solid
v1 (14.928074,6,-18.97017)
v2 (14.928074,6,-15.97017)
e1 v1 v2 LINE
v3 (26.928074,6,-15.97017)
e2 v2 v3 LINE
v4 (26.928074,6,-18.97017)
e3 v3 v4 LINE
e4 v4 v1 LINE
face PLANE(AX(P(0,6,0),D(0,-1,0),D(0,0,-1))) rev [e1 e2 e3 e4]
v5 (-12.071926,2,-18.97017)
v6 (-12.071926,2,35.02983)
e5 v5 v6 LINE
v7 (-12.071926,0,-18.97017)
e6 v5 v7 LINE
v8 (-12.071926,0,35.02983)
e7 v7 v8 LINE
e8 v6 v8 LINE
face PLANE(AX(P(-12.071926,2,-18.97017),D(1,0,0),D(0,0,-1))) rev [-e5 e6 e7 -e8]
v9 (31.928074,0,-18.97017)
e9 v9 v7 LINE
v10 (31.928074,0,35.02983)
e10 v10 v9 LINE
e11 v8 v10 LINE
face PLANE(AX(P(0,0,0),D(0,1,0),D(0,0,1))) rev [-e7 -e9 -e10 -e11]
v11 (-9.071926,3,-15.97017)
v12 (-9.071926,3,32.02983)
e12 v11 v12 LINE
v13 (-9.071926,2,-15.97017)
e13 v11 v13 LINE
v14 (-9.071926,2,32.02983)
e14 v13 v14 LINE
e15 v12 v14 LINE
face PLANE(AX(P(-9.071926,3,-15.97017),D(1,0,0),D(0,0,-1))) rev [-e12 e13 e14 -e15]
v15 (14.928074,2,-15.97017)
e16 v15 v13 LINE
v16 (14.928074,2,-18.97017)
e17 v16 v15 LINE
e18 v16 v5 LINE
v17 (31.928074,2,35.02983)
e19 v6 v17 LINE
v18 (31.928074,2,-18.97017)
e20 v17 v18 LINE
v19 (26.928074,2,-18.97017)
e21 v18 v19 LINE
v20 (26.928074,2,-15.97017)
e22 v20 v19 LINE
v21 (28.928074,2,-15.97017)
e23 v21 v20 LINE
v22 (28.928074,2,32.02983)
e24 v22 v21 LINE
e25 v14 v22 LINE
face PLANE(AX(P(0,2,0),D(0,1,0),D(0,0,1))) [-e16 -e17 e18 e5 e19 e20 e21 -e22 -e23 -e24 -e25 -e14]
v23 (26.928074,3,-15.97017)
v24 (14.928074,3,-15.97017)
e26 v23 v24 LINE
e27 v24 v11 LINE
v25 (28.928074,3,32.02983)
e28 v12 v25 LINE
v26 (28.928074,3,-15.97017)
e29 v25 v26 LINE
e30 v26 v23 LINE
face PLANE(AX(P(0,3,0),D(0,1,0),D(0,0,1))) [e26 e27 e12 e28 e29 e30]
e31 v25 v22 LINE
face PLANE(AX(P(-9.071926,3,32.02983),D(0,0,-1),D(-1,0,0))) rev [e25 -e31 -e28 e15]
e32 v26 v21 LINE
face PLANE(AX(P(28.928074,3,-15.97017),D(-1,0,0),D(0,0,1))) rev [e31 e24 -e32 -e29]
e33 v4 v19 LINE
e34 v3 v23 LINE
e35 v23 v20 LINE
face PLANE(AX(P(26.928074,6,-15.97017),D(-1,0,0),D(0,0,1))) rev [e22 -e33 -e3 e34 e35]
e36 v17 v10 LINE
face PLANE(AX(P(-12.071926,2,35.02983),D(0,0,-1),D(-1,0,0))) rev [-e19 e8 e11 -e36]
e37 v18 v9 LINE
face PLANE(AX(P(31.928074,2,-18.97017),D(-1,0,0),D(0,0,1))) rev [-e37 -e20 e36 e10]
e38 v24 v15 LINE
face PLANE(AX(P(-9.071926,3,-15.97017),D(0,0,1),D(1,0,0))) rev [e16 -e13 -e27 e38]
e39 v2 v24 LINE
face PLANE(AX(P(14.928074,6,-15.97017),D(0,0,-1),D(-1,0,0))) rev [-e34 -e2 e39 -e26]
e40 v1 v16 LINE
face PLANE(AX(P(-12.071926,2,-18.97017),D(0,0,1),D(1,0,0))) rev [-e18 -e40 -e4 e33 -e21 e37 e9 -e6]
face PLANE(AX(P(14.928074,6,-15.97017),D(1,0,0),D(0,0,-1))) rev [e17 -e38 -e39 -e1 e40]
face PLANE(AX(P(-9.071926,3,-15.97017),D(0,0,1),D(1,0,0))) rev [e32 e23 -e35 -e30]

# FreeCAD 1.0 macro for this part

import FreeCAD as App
import Part
import Sketcher
Q = App.Units.Quantity

doc = App.newDocument("Part")
body = doc.addObject("PartDesign::Body", "Body")

sketch1 = body.newObject("Sketcher::SketchObject", "Sketch")
sketch1.AttachmentSupport = (doc.getObject("XZ_Plane"), [""])
sketch1.MapMode = "FlatFace"
sketch1.addGeometry([
    Part.LineSegment(App.Vector(-12.071926, -18.97017, 0), App.Vector(-12.071926, 35.02983, 0)),
    Part.LineSegment(App.Vector(-12.071926, 35.02983, 0), App.Vector(31.928074, 35.02983, 0)),
    Part.LineSegment(App.Vector(31.928074, 35.02983, 0), App.Vector(31.928074, -18.97017, 0)),
    Part.LineSegment(App.Vector(31.928074, -18.97017, 0), App.Vector(-12.071926, -18.97017, 0)),
], False)
sketch1.addConstraint([
    Sketcher.Constraint("Coincident", 0, 2, 1, 1),
    Sketcher.Constraint("Coincident", 1, 2, 2, 1),
    Sketcher.Constraint("Coincident", 2, 2, 3, 1),
    Sketcher.Constraint("Coincident", 3, 2, 0, 1),
    Sketcher.Constraint("Vertical", 0),
    Sketcher.Constraint("Horizontal", 1),
    Sketcher.Constraint("Vertical", 2),
    Sketcher.Constraint("Horizontal", 3),
    Sketcher.Constraint("DistanceX", 1, 1, 1, 2, Q("44 mm")),
    Sketcher.Constraint("DistanceY", 0, 1, 0, 2, Q("54 mm")),
    Sketcher.Constraint("DistanceY", -1, 1, 0, 2, Q("35.02983 mm")),
    Sketcher.Constraint("DistanceX", 0, 2, -1, 1, Q("12.071926 mm")),
])
pad1 = body.newObject("PartDesign::Pad", "Pad")
pad1.Profile = sketch1
pad1.Length = 2
pad1.Reversed = True

sketch2 = body.newObject("Sketcher::SketchObject", "Sketch001")
sketch2.AttachmentSupport = (doc.getObject("XZ_Plane"), [""])
sketch2.MapMode = "FlatFace"
sketch2.AttachmentOffset = App.Placement(App.Vector(0, 0, -2), App.Rotation())
sketch2.addGeometry([
    Part.LineSegment(App.Vector(-9.071926, -15.97017, 0), App.Vector(-9.071926, 32.02983, 0)),
    Part.LineSegment(App.Vector(-9.071926, 32.02983, 0), App.Vector(28.928074, 32.02983, 0)),
    Part.LineSegment(App.Vector(28.928074, 32.02983, 0), App.Vector(28.928074, -15.97017, 0)),
    Part.LineSegment(App.Vector(28.928074, -15.97017, 0), App.Vector(-9.071926, -15.97017, 0)),
], False)
sketch2.addConstraint([
    Sketcher.Constraint("Coincident", 0, 2, 1, 1),
    Sketcher.Constraint("Coincident", 1, 2, 2, 1),
    Sketcher.Constraint("Coincident", 2, 2, 3, 1),
    Sketcher.Constraint("Coincident", 3, 2, 0, 1),
    Sketcher.Constraint("Vertical", 0),
    Sketcher.Constraint("Horizontal", 1),
    Sketcher.Constraint("Vertical", 2),
    Sketcher.Constraint("Horizontal", 3),
    Sketcher.Constraint("DistanceX", 1, 1, 1, 2, Q("38 mm")),
    Sketcher.Constraint("DistanceY", 0, 1, 0, 2, Q("48 mm")),
    Sketcher.Constraint("DistanceY", -1, 1, 0, 2, Q("32.02983 mm")),
    Sketcher.Constraint("DistanceX", 0, 2, -1, 1, Q("9.071926 mm")),
])
pad2 = body.newObject("PartDesign::Pad", "Pad001")
pad2.Profile = sketch2
pad2.Length = 1
pad2.Reversed = True

sketch3 = body.newObject("Sketcher::SketchObject", "Sketch002")
sketch3.AttachmentSupport = (doc.getObject("XZ_Plane"), [""])
sketch3.MapMode = "FlatFace"
sketch3.AttachmentOffset = App.Placement(App.Vector(0, 0, -2), App.Rotation())
sketch3.addGeometry([
    Part.LineSegment(App.Vector(14.928074, -18.97017, 0), App.Vector(14.928074, -15.97017, 0)),
    Part.LineSegment(App.Vector(14.928074, -15.97017, 0), App.Vector(26.928074, -15.97017, 0)),
    Part.LineSegment(App.Vector(26.928074, -15.97017, 0), App.Vector(26.928074, -18.97017, 0)),
    Part.LineSegment(App.Vector(26.928074, -18.97017, 0), App.Vector(14.928074, -18.97017, 0)),
], False)
sketch3.addConstraint([
    Sketcher.Constraint("Coincident", 0, 2, 1, 1),
    Sketcher.Constraint("Coincident", 1, 2, 2, 1),
    Sketcher.Constraint("Coincident", 2, 2, 3, 1),
    Sketcher.Constraint("Coincident", 3, 2, 0, 1),
    Sketcher.Constraint("Vertical", 0),
    Sketcher.Constraint("Horizontal", 1),
    Sketcher.Constraint("Vertical", 2),
    Sketcher.Constraint("Horizontal", 3),
    Sketcher.Constraint("DistanceX", 1, 1, 1, 2, Q("12 mm")),
    Sketcher.Constraint("DistanceY", 0, 1, 0, 2, Q("3 mm")),
    Sketcher.Constraint("DistanceY", 0, 2, -1, 1, Q("15.97017 mm")),
    Sketcher.Constraint("DistanceX", -1, 1, 0, 2, Q("14.928074 mm")),
])
pad3 = body.newObject("PartDesign::Pad", "Pad002")
pad3.Profile = sketch3
pad3.Length = 4
pad3.Reversed = True

doc.recompute()
